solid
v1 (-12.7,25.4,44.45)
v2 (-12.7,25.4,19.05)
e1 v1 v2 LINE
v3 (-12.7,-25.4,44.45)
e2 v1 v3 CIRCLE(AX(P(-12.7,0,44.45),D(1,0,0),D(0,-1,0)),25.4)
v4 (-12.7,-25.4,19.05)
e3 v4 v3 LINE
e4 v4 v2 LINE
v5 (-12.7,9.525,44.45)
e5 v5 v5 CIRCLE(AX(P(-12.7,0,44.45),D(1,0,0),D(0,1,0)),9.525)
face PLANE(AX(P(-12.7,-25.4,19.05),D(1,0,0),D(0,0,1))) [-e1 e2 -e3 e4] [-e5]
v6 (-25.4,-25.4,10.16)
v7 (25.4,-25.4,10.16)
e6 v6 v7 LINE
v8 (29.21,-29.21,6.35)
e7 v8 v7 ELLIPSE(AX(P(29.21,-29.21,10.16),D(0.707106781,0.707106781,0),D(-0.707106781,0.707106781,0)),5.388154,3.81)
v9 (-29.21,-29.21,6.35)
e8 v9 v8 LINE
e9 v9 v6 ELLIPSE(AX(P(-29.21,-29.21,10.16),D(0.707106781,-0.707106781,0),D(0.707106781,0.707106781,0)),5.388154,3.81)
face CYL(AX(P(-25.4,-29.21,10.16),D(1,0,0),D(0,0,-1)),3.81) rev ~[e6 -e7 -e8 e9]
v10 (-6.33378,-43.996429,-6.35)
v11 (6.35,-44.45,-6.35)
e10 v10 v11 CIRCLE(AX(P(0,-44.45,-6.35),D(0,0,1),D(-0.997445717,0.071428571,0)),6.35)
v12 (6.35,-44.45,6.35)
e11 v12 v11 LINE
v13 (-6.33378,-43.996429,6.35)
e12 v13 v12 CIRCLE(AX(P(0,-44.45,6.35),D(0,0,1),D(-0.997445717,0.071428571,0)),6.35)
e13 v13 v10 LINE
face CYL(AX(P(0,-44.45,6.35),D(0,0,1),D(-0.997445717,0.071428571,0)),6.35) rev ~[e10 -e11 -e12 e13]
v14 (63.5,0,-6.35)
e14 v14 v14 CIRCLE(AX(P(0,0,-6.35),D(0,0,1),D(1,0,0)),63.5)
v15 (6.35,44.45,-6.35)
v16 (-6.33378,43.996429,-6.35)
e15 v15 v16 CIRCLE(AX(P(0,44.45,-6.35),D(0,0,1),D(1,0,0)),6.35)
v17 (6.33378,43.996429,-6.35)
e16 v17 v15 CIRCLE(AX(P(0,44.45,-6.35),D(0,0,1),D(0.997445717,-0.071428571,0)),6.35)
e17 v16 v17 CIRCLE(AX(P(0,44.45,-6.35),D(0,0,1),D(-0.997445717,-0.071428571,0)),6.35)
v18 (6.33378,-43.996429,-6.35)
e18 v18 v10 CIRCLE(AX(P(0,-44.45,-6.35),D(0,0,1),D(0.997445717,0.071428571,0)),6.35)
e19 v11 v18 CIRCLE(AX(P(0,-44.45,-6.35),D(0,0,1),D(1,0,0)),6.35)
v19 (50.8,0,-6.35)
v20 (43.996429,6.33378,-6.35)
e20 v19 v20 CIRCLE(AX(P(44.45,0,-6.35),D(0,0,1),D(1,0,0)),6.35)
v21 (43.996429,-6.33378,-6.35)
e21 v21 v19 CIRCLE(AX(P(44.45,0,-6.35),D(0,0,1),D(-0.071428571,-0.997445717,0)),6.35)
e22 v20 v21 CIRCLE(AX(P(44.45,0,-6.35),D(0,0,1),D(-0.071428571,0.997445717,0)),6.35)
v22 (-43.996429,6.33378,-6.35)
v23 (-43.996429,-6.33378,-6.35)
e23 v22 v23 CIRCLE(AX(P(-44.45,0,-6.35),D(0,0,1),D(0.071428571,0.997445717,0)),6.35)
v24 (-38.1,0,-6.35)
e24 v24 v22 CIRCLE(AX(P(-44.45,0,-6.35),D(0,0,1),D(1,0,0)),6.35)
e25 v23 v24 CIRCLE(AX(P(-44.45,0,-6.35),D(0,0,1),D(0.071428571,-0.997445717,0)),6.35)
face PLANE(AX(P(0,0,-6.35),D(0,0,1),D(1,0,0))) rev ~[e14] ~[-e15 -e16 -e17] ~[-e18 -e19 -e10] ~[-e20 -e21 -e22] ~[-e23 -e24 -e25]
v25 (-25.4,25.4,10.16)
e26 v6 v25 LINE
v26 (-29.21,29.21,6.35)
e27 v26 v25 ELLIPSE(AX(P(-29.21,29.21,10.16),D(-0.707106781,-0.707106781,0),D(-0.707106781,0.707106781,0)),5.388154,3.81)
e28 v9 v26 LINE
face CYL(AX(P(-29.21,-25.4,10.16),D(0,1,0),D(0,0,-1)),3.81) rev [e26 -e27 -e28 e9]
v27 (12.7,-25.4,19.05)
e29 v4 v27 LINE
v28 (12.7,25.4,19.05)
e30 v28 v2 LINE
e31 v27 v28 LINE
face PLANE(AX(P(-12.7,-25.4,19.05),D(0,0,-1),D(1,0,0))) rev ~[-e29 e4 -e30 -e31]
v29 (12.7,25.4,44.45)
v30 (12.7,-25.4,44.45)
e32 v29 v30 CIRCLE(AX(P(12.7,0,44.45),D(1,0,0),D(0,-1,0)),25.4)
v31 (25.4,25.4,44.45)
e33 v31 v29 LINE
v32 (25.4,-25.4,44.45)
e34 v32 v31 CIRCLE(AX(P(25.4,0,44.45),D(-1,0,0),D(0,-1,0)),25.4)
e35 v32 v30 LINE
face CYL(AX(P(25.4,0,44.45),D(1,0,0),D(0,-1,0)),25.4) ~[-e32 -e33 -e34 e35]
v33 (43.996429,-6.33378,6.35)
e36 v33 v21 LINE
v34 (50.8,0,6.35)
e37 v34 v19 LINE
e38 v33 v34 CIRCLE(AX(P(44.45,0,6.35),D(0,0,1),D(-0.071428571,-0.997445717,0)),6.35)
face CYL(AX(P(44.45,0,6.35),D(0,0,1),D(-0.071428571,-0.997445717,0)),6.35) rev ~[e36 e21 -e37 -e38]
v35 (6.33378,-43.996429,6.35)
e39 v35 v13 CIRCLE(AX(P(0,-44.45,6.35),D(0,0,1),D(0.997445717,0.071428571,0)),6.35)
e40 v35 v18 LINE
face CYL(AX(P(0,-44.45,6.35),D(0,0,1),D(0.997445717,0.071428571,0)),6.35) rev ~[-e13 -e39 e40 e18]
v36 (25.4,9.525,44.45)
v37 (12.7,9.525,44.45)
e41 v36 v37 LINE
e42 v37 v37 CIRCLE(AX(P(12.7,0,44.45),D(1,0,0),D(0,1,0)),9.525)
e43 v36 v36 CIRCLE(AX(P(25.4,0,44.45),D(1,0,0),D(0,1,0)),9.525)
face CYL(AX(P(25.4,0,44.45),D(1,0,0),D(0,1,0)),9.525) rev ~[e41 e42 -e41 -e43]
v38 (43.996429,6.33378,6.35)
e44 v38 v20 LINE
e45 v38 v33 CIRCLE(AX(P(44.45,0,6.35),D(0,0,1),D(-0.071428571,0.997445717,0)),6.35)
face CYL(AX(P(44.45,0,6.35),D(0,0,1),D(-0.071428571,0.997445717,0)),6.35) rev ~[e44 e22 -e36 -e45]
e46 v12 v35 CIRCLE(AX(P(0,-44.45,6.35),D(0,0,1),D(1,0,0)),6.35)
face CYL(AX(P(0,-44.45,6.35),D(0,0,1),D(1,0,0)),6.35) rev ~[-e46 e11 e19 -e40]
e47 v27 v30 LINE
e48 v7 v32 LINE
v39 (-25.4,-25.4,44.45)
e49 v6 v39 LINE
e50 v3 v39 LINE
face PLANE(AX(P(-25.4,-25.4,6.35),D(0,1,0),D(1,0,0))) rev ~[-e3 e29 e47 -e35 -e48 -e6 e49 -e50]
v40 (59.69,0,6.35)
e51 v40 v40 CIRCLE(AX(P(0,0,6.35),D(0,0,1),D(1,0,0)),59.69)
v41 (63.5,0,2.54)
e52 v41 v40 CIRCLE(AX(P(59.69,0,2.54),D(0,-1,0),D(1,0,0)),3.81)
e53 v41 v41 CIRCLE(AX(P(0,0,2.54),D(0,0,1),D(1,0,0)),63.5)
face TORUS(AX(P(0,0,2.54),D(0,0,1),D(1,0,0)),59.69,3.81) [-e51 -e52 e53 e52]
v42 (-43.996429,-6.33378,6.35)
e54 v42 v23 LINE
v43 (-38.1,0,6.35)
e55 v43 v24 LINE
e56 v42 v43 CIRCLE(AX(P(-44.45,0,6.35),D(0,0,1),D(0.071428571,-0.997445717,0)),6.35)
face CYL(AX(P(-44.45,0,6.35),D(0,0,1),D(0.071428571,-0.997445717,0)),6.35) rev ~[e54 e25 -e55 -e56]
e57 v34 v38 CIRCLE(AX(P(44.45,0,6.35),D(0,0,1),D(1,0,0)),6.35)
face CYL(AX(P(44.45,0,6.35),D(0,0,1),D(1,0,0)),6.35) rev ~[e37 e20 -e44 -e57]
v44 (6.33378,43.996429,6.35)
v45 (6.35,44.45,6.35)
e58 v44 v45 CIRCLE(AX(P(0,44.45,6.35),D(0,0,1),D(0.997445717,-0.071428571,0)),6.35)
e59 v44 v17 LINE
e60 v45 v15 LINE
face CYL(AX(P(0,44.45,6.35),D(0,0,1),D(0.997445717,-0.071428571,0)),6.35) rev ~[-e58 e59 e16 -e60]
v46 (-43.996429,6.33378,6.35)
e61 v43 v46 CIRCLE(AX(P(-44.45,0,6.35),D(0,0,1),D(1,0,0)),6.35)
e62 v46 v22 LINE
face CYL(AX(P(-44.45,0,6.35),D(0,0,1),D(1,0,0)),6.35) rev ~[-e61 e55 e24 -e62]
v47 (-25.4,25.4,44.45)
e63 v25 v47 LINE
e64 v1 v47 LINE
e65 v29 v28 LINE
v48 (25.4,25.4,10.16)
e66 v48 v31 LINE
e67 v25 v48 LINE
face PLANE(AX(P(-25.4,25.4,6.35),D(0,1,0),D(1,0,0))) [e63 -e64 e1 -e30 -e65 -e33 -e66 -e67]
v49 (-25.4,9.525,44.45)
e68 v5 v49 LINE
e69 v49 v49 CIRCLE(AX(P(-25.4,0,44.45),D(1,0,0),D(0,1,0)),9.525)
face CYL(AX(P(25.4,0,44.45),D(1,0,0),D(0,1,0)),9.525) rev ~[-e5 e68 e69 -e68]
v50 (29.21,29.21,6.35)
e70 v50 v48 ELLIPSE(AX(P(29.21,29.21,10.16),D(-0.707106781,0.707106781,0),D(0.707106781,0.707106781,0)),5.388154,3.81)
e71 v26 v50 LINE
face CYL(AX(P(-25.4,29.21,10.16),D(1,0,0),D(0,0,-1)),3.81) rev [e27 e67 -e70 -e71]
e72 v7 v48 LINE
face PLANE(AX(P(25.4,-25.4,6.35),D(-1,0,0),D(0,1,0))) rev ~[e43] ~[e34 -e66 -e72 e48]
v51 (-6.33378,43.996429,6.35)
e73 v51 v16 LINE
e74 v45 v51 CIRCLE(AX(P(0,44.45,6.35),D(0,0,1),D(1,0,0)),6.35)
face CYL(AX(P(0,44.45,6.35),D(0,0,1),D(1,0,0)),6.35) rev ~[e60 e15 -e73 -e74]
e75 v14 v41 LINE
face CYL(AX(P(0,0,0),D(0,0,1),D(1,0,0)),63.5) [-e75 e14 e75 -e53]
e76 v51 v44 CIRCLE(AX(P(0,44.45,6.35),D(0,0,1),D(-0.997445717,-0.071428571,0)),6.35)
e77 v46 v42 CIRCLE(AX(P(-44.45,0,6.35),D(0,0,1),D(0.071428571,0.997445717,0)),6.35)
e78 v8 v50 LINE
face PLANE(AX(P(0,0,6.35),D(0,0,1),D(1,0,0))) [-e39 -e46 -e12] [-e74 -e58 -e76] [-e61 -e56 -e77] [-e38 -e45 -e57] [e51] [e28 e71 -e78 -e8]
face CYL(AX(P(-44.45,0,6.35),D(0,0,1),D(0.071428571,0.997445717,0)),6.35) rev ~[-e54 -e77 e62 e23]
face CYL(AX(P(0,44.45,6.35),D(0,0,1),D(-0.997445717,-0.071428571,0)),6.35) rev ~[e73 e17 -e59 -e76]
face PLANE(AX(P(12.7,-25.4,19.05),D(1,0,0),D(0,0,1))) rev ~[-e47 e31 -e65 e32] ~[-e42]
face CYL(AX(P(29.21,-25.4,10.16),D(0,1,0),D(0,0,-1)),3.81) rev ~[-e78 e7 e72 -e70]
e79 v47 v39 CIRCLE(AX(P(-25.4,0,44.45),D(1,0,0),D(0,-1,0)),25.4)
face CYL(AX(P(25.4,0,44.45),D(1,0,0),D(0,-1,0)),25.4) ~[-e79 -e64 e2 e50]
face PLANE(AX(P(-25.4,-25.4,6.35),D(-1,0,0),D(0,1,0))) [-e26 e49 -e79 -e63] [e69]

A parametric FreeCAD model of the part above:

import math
import FreeCAD as App
import Part
import Sketcher
Q = App.Units.Quantity


def edges_at(feature, points):
    """Names of the edges that pass closest to the given points."""
    edges = feature.Shape.Edges
    near = lambda p: min(range(len(edges)), key=lambda i: edges[i].distToShape(Part.Vertex(*p))[0])
    return sorted({f"Edge{near(p) + 1}" for p in points})


def add_polygon(sketch, points):
    """Adds a closed chain of lines whose ends are joined by coincident constraints."""
    first, n = sketch.GeometryCount, len(points)
    for a, b in zip(points, points[1:] + points[:1]):
        sketch.addGeometry(Part.LineSegment(App.Vector(*a, 0), App.Vector(*b, 0)), False)
    for i in range(n):
        sketch.addConstraint(Sketcher.Constraint("Coincident", first + i, 2, first + (i + 1) % n, 1))

doc = App.newDocument("Part")
params = doc.addObject("Spreadsheet::Sheet", "Params")
for row, (alias, value) in enumerate([
    ("sketch1_diameter", "5 in"),
    ("pad1_length", "0.5 in"),
    ("sketch2_width", "2 in"),
    ("pad2_length", "3 in"),
    ("sketch3_width", "1 in"),
    ("sketch3_height", "2.5 in"),
    ("sketch4_diameter", "0.75 in"),
    ("sketch5_radius", "1 in"),
    ("sketch5_height", "1.5 in"),
    ("sketch6_radius", "0.25 in"),
    ("fillet_radius", "0.15 in"),
], start=1):
    params.set(f"A{row}", alias)
    params.set(f"B{row}", "=" + value)
    params.setAlias(f"B{row}", alias)

body = doc.addObject("PartDesign::Body", "Body")

# Sketch on XY plane
sketch1 = doc.addObject("Sketcher::SketchObject", "Sketch")
body.addObject(sketch1)
sketch1.AttachmentSupport = (doc.XY_Plane, [""])
sketch1.MapMode = "FlatFace"
sketch1.addGeometry(Part.Circle(App.Vector(0, 0, 0), App.Vector(0, 0, 1), 64), False)
sketch1.addConstraint([
    Sketcher.Constraint("Coincident", 0, 3, -1, 1),
    Sketcher.Constraint("Diameter", 0, Q("5 in")),
])
sketch1.setExpression("Constraints[1]", "Params.sketch1_diameter")
pad1 = doc.addObject("PartDesign::Pad", "Pad")
body.addObject(pad1)
pad1.Profile = sketch1
pad1.setExpression("Length", "Params.pad1_length")
pad1.Midplane = True

# Sketch on XY plane
sketch2 = doc.addObject("Sketcher::SketchObject", "Sketch001")
body.addObject(sketch2)
sketch2.AttachmentSupport = (doc.XY_Plane, [""])
sketch2.MapMode = "FlatFace"
sketch2.AttachmentOffset = App.Placement(App.Vector(0, 0, 0.25 * 25.4), App.Rotation())
add_polygon(sketch2, [(-25, 25), (-25, -25), (25, -25), (25, 25)])  # lines 0-3
sketch2.addConstraint([
    Sketcher.Constraint("Vertical", 0),
    Sketcher.Constraint("Horizontal", 1),
    Sketcher.Constraint("Vertical", 2),
    Sketcher.Constraint("Horizontal", 3),
    Sketcher.Constraint("Symmetric", 0, 2, 2, 2, -1, 1),
    Sketcher.Constraint("Equal", 3, 0),
    Sketcher.Constraint("DistanceX", 1, 1, 1, 2, Q("2 in")),
])
sketch2.setExpression("Constraints[10]", "Params.sketch2_width")
pad2 = doc.addObject("PartDesign::Pad", "Pad001")
body.addObject(pad2)
pad2.Profile = sketch2
pad2.setExpression("Length", "Params.pad2_length")

# Sketch on XZ plane
sketch3 = doc.addObject("Sketcher::SketchObject", "Sketch002")
body.addObject(sketch3)
sketch3.AttachmentSupport = (doc.XZ_Plane, [""])
sketch3.MapMode = "FlatFace"
sketch3.AttachmentOffset = App.Placement(App.Vector(0, 0, 1 * 25.4), App.Rotation())
add_polygon(sketch3, [(-13, 83), (-13, 19), (13, 19), (13, 83)])  # lines 0-3
sketch3.addConstraint([
    Sketcher.Constraint("Vertical", 0),
    Sketcher.Constraint("Horizontal", 1),
    Sketcher.Constraint("Vertical", 2),
    Sketcher.Constraint("Horizontal", 3),
    Sketcher.Constraint("DistanceX", 1, 1, 1, 2, Q("1 in")),
    Sketcher.Constraint("DistanceY", 0, 2, 0, 1, Q("2.5 in")),
    Sketcher.Constraint("DistanceX", 0, 2, -1, 1, Q("0.5 in")),
    Sketcher.Constraint("DistanceY", -1, 1, 0, 2, Q("0.75 in")),
])
sketch3.setExpression("Constraints[8]", "Params.sketch3_width")
sketch3.setExpression("Constraints[9]", "Params.sketch3_height")
pocket1 = doc.addObject("PartDesign::Pocket", "Pocket")
body.addObject(pocket1)
pocket1.Profile = sketch3
pocket1.Type = "ThroughAll"

# Sketch on YZ plane
sketch4 = doc.addObject("Sketcher::SketchObject", "Sketch003")
body.addObject(sketch4)
sketch4.AttachmentSupport = (doc.YZ_Plane, [""])
sketch4.MapMode = "FlatFace"
sketch4.AttachmentOffset = App.Placement(App.Vector(0, 0, 1 * 25.4), App.Rotation())
sketch4.addGeometry(Part.Circle(App.Vector(0, 44, 0), App.Vector(0, 0, 1), 10), False)
sketch4.addConstraint([
    Sketcher.Constraint("PointOnObject", 0, 3, -2),
    Sketcher.Constraint("Diameter", 0, Q("0.75 in")),
    Sketcher.Constraint("DistanceY", -1, 1, 0, 3, Q("1.75 in")),
])
sketch4.setExpression("Constraints[1]", "Params.sketch4_diameter")
pocket2 = doc.addObject("PartDesign::Pocket", "Pocket001")
body.addObject(pocket2)
pocket2.Profile = sketch4
pocket2.Type = "ThroughAll"

# Sketch on YZ plane
sketch5 = doc.addObject("Sketcher::SketchObject", "Sketch004")
body.addObject(sketch5)
sketch5.AttachmentSupport = (doc.YZ_Plane, [""])
sketch5.MapMode = "FlatFace"
sketch5.AttachmentOffset = App.Placement(App.Vector(0, 0, 1 * 25.4), App.Rotation())
sketch5.addGeometry([
    Part.ArcOfCircle(Part.Circle(App.Vector(0, 44, 0), App.Vector(0, 0, 1), 25), math.radians(0), math.radians(180)),
    Part.LineSegment(App.Vector(25, 44, 0), App.Vector(25, 83, 0)),
    Part.LineSegment(App.Vector(25, 83, 0), App.Vector(-25, 83, 0)),
    Part.LineSegment(App.Vector(-25, 83, 0), App.Vector(-25, 44, 0)),
], False)
sketch5.addConstraint([
    Sketcher.Constraint("Tangent", 0, 1, 1, 1),
    Sketcher.Constraint("Coincident", 1, 2, 2, 1),
    Sketcher.Constraint("Coincident", 2, 2, 3, 1),
    Sketcher.Constraint("Tangent", 3, 2, 0, 2),
    Sketcher.Constraint("Vertical", 1),
    Sketcher.Constraint("Horizontal", 2),
    Sketcher.Constraint("Vertical", 3),
    Sketcher.Constraint("PointOnObject", 0, 3, -2),
    Sketcher.Constraint("Radius", 0, Q("1 in")),
    Sketcher.Constraint("DistanceY", 1, 1, 1, 2, Q("1.5 in")),
    Sketcher.Constraint("DistanceY", -1, 1, 0, 3, Q("1.75 in")),
])
sketch5.setExpression("Constraints[8]", "Params.sketch5_radius")
sketch5.setExpression("Constraints[9]", "Params.sketch5_height")
pocket3 = doc.addObject("PartDesign::Pocket", "Pocket002")
body.addObject(pocket3)
pocket3.Profile = sketch5
pocket3.Type = "ThroughAll"

# Sketch on XY plane
sketch6 = doc.addObject("Sketcher::SketchObject", "Sketch005")
body.addObject(sketch6)
sketch6.AttachmentSupport = (doc.XY_Plane, [""])
sketch6.MapMode = "FlatFace"
sketch6.AttachmentOffset = App.Placement(App.Vector(0, 0, 0.25 * 25.4), App.Rotation())
sketch6.addGeometry([
    Part.ArcOfCircle(Part.Circle(App.Vector(-44.45, 0, 0), App.Vector(0, 0, 1), 6.35), math.radians(86), math.radians(274)),  # 0
    Part.ArcOfCircle(Part.Circle(App.Vector(-44.45, 0, 0), App.Vector(0, 0, 1), 6.35), math.radians(-86), math.radians(0)),  # 1
    Part.ArcOfCircle(Part.Circle(App.Vector(-44.45, 0, 0), App.Vector(0, 0, 1), 6.35), math.radians(0), math.radians(86)),  # 2
    Part.ArcOfCircle(Part.Circle(App.Vector(0, 44.45, 0), App.Vector(0, 0, 1), 6.35), math.radians(-176), math.radians(-4)),  # 3
    Part.ArcOfCircle(Part.Circle(App.Vector(0, 44.45, 0), App.Vector(0, 0, 1), 6.35), math.radians(-4.1), math.radians(0)),  # 4
    Part.ArcOfCircle(Part.Circle(App.Vector(0, 44.45, 0), App.Vector(0, 0, 1), 6.35), math.radians(0), math.radians(184)),  # 5
    Part.ArcOfCircle(Part.Circle(App.Vector(44.45, 0, 0), App.Vector(0, 0, 1), 6.35), math.radians(94), math.radians(266)),  # 6
    Part.ArcOfCircle(Part.Circle(App.Vector(44.45, 0, 0), App.Vector(0, 0, 1), 6.35), math.radians(-94), math.radians(0)),  # 7
    Part.ArcOfCircle(Part.Circle(App.Vector(44.45, 0, 0), App.Vector(0, 0, 1), 6.35), math.radians(0), math.radians(94)),  # 8
    Part.ArcOfCircle(Part.Circle(App.Vector(0, -44.45, 0), App.Vector(0, 0, 1), 6.35), math.radians(4), math.radians(176)),  # 9
    Part.ArcOfCircle(Part.Circle(App.Vector(0, -44.45, 0), App.Vector(0, 0, 1), 6.35), math.radians(176), math.radians(360)),  # 10
    Part.ArcOfCircle(Part.Circle(App.Vector(0, -44.45, 0), App.Vector(0, 0, 1), 6.35), math.radians(0), math.radians(4.1)),  # 11
], False)
sketch6.addConstraint([
    Sketcher.Constraint("Tangent", 0, 2, 1, 1),
    Sketcher.Constraint("Tangent", 1, 2, 2, 1),
    Sketcher.Constraint("Tangent", 2, 2, 0, 1),
    Sketcher.Constraint("Tangent", 3, 2, 4, 1),
    Sketcher.Constraint("Tangent", 4, 2, 5, 1),
    Sketcher.Constraint("Tangent", 5, 2, 3, 1),
    Sketcher.Constraint("Tangent", 6, 2, 7, 1),
    Sketcher.Constraint("Tangent", 7, 2, 8, 1),
    Sketcher.Constraint("Tangent", 8, 2, 6, 1),
    Sketcher.Constraint("Tangent", 9, 2, 10, 1),
    Sketcher.Constraint("Tangent", 10, 2, 11, 1),
    Sketcher.Constraint("Tangent", 11, 2, 9, 1),
    Sketcher.Constraint("Equal", 2, 3),
    Sketcher.Constraint("Equal", 5, 6),
    Sketcher.Constraint("Equal", 8, 9),
    Sketcher.Constraint("Symmetric", 0, 3, 6, 3, -1, 1),
    Sketcher.Constraint("Symmetric", 3, 3, 9, 3, -1, 1),
    Sketcher.Constraint("Symmetric", 3, 2, 5, 2, -2),
    Sketcher.Constraint("Symmetric", 0, 2, 6, 2, -2),
    Sketcher.Constraint("PointOnObject", 1, 2, -1),
    Sketcher.Constraint("PointOnObject", 7, 2, -1),
    Sketcher.Constraint("Horizontal", 5, 3, 4, 2),
    Sketcher.Constraint("Horizontal", 2, 2, 8, 2),
    Sketcher.Constraint("Horizontal", 11, 3, 10, 2),
    Sketcher.Constraint("Horizontal", 9, 2, 11, 2),
    Sketcher.Constraint("Vertical", 0, 2, 2, 2),
    Sketcher.Constraint("Vertical", 5, 2, 9, 2),
    Sketcher.Constraint("Radius", 0, Q("0.25 in")),
    Sketcher.Constraint("DistanceX", -1, 1, 7, 2, Q("2 in")),
    Sketcher.Constraint("DistanceY", -1, 1, 3, 3, Q("1.75 in")),
    Sketcher.Constraint("DistanceX", 0, 2, -1, 1, Q("43.996429 mm")),
    Sketcher.Constraint("DistanceX", -1, 1, 3, 2, Q("6.33378 mm")),
])
sketch6.setExpression("Constraints[27]", "Params.sketch6_radius")
pocket4 = doc.addObject("PartDesign::Pocket", "Pocket003")
body.addObject(pocket4)
pocket4.Profile = sketch6
pocket4.Type = "ThroughAll"
doc.recompute()

fillet = doc.addObject("PartDesign::Fillet", "Fillet")
body.addObject(fillet)
fillet.Base = (pocket4, edges_at(pocket4, [
    (-63.5, 0, 6.35),
    (25.4, 0, 6.35),
    (0, -25.4, 6.35),
    (-25.4, 0, 6.35),
    (0, 25.4, 6.35),
]))
fillet.setExpression("Radius", "Params.fillet_radius")

doc.recompute()
